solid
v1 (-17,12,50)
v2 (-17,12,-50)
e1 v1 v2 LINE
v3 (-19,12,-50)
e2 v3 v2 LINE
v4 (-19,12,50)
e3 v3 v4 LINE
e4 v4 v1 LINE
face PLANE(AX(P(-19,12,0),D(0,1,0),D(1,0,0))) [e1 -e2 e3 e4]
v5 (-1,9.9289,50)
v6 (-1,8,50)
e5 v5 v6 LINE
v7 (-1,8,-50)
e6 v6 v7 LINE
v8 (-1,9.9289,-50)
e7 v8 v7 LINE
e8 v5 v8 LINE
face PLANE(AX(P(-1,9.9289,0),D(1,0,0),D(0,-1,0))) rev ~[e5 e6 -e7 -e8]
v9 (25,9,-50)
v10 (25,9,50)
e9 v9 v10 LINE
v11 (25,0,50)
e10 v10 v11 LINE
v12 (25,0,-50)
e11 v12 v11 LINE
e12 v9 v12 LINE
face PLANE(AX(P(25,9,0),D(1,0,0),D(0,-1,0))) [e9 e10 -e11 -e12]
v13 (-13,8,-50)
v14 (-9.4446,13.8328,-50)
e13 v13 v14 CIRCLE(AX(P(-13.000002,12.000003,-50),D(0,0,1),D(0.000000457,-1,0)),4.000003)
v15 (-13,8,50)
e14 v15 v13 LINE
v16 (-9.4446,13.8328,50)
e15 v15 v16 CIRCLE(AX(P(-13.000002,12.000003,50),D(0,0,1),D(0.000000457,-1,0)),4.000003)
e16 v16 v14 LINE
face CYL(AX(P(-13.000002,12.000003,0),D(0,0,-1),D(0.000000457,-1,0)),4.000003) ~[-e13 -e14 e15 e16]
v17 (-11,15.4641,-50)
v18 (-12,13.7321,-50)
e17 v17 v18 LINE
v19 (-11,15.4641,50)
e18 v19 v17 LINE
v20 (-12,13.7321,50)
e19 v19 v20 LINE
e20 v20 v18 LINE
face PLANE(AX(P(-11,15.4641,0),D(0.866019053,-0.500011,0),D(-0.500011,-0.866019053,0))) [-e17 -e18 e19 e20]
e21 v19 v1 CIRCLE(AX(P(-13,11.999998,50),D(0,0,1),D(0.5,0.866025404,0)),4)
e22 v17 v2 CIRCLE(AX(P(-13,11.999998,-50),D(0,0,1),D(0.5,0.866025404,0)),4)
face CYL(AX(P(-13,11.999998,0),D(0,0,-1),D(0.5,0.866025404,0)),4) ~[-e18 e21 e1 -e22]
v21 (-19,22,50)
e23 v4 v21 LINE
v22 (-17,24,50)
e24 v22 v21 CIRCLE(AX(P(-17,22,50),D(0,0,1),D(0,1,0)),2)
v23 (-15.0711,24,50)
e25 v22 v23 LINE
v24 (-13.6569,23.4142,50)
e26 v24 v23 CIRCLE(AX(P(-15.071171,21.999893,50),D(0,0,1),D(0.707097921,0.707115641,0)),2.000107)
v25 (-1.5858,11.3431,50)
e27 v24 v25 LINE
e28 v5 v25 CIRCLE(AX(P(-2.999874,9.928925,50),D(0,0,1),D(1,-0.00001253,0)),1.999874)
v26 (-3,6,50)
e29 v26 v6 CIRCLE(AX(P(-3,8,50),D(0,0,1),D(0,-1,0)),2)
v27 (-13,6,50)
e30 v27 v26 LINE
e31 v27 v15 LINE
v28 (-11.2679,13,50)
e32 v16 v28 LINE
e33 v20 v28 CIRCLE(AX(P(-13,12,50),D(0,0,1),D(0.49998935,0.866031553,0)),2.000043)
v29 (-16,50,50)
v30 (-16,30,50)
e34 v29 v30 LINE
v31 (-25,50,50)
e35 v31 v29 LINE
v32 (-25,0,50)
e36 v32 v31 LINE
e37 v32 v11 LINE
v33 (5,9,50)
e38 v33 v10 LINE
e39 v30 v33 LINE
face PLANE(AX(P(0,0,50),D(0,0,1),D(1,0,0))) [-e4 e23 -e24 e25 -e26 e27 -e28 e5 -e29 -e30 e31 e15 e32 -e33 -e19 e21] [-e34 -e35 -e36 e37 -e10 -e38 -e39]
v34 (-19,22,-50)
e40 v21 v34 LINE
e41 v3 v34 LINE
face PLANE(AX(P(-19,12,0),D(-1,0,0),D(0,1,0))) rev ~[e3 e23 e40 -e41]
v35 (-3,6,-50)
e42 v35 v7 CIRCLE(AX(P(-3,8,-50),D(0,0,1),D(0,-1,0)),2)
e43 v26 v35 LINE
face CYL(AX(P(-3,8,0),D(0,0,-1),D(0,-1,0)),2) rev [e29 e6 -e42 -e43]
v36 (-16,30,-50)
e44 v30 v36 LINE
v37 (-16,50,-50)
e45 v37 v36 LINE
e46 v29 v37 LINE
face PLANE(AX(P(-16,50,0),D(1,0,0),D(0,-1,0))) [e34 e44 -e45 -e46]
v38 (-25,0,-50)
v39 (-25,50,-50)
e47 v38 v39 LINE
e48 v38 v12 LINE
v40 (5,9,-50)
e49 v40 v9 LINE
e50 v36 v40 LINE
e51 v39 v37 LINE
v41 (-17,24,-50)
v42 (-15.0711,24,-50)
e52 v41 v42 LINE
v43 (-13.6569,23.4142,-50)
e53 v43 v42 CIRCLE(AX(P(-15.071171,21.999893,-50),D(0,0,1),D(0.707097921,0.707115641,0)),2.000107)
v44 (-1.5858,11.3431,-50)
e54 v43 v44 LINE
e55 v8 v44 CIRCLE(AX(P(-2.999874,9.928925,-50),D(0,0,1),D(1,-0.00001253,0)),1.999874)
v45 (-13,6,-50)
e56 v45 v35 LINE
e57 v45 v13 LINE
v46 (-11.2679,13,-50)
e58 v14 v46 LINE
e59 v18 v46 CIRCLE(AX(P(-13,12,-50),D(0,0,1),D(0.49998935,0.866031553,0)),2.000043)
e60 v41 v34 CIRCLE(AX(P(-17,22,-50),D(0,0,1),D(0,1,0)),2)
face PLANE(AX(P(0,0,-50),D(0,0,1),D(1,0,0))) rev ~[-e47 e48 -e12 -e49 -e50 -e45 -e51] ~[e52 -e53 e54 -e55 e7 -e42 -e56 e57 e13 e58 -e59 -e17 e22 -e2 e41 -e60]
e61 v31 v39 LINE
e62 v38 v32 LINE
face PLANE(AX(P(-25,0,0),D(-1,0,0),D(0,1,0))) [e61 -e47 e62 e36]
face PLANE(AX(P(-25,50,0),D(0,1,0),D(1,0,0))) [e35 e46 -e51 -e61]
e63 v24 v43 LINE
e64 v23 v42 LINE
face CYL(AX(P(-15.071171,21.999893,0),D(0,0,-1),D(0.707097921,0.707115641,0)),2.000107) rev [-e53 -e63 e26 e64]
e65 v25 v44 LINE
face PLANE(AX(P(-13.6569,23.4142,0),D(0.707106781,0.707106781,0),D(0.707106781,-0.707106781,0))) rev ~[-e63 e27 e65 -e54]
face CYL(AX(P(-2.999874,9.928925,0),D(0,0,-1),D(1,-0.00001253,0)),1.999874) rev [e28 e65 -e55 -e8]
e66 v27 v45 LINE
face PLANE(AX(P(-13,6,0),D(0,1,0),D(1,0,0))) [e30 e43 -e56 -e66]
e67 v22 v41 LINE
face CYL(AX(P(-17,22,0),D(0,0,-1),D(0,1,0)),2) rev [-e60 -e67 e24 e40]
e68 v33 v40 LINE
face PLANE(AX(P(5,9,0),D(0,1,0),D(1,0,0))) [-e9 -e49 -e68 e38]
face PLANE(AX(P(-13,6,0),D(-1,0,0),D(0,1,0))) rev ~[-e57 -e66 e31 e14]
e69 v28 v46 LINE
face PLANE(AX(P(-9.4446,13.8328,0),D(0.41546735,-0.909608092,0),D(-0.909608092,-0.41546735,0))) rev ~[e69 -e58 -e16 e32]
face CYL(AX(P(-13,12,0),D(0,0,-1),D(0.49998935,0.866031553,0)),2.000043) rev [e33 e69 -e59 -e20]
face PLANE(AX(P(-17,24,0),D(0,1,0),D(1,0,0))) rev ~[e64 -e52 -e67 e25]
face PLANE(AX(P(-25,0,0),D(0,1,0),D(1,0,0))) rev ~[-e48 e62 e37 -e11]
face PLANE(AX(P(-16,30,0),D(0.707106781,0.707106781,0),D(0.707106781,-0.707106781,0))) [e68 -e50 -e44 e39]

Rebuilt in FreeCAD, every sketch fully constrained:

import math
import FreeCAD as App
import Part
import Sketcher
from FreeCAD import Vector


def add_polygon(sketch, points):
    """Adds a closed chain of lines whose ends are joined by coincident constraints."""
    first, n = sketch.GeometryCount, len(points)
    for a, b in zip(points, points[1:] + points[:1]):
        sketch.addGeometry(Part.LineSegment(App.Vector(*a, 0), App.Vector(*b, 0)), False)
    for i in range(n):
        sketch.addConstraint(Sketcher.Constraint("Coincident", first + i, 2, first + (i + 1) % n, 1))

doc = App.newDocument("Part")
body = doc.addObject("PartDesign::Body", "Body")

sketch1 = doc.addObject("Sketcher::SketchObject", "Sketch")
body.addObject(sketch1)
sketch1.AttachmentSupport = (doc.XY_Plane, [""])
sketch1.MapMode = "FlatFace"
add_polygon(sketch1, [(-25, 50), (-25, 0), (25, 0), (25, 9), (5, 9), (-16, 30), (-16, 50)])
sketch1.addGeometry(Part.LineSegment(Vector(-17, 12, 0), Vector(-19, 12, 0)), False)
sketch1.addGeometry(Part.LineSegment(Vector(-19, 12, 0), Vector(-19, 22, 0)), False)
sketch1.addGeometry(Part.ArcOfCircle(Part.Circle(Vector(-17, 22, 0), Vector(0, 0, 1), 2), math.radians(90), math.radians(180)), False)
sketch1.addGeometry(Part.LineSegment(Vector(-17, 24, 0), Vector(-15.0711, 24, 0)), False)
sketch1.addGeometry(Part.ArcOfCircle(Part.Circle(Vector(-15.0711, 22, 0), Vector(0, 0, 1), 1.999981), math.radians(45), math.radians(90)), False)
sketch1.addGeometry(Part.LineSegment(Vector(-13.6569, 23.4142, 0), Vector(-1.5858, 11.3431, 0)), False)
sketch1.addGeometry(Part.ArcOfCircle(Part.Circle(Vector(-3, 9.9289, 0), Vector(0, 0, 1), 2), math.radians(0), math.radians(45)), False)
sketch1.addGeometry(Part.LineSegment(Vector(-1, 9.9289, 0), Vector(-1, 8, 0)), False)
sketch1.addGeometry(Part.ArcOfCircle(Part.Circle(Vector(-3, 8, 0), Vector(0, 0, 1), 2), math.radians(-90), math.radians(0)), False)
sketch1.addGeometry(Part.LineSegment(Vector(-3, 6, 0), Vector(-13, 6, 0)), False)
sketch1.addGeometry(Part.LineSegment(Vector(-13, 6, 0), Vector(-13, 8, 0)), False)
sketch1.addGeometry(Part.ArcOfCircle(Part.Circle(Vector(-13, 12, 0), Vector(0, 0, 1), 4), math.radians(-90), math.radians(27.270995)), False)
sketch1.addGeometry(Part.LineSegment(Vector(-9.4446, 13.8328, 0), Vector(-11.2679, 13, 0)), False)
sketch1.addGeometry(Part.ArcOfCircle(Part.Circle(Vector(-13, 12, 0), Vector(0, 0, 1), 2.000043), math.radians(60.000705), math.radians(389.999295)), False)
sketch1.addGeometry(Part.LineSegment(Vector(-12, 13.7321, 0), Vector(-11, 15.4641, 0)), False)
sketch1.addGeometry(Part.ArcOfCircle(Part.Circle(Vector(-13, 12, 0), Vector(0, 0, 1), 4), math.radians(59.999988), math.radians(180)), False)
sketch1.addConstraint(Sketcher.Constraint("Coincident", 7, 2, 8, 1))
sketch1.addConstraint(Sketcher.Constraint("Tangent", 8, 2, 9, 2))
sketch1.addConstraint(Sketcher.Constraint("Tangent", 9, 1, 10, 1))
sketch1.addConstraint(Sketcher.Constraint("Tangent", 10, 2, 11, 2))
sketch1.addConstraint(Sketcher.Constraint("Tangent", 11, 1, 12, 1))
sketch1.addConstraint(Sketcher.Constraint("Tangent", 12, 2, 13, 2))
sketch1.addConstraint(Sketcher.Constraint("Tangent", 13, 1, 14, 1))
sketch1.addConstraint(Sketcher.Constraint("Tangent", 14, 2, 15, 2))
sketch1.addConstraint(Sketcher.Constraint("Tangent", 15, 1, 16, 1))
sketch1.addConstraint(Sketcher.Constraint("Coincident", 16, 2, 17, 1))
sketch1.addConstraint(Sketcher.Constraint("Coincident", 17, 2, 18, 1))
sketch1.addConstraint(Sketcher.Constraint("Coincident", 18, 2, 19, 1))
sketch1.addConstraint(Sketcher.Constraint("Coincident", 19, 2, 20, 2))
sketch1.addConstraint(Sketcher.Constraint("Coincident", 20, 1, 21, 1))
sketch1.addConstraint(Sketcher.Constraint("Coincident", 21, 2, 22, 1))
sketch1.addConstraint(Sketcher.Constraint("Coincident", 22, 2, 7, 1))
sketch1.addConstraint(Sketcher.Constraint("Vertical", 0))
sketch1.addConstraint(Sketcher.Constraint("Horizontal", 1))
sketch1.addConstraint(Sketcher.Constraint("Vertical", 2))
sketch1.addConstraint(Sketcher.Constraint("Horizontal", 3))
sketch1.addConstraint(Sketcher.Constraint("Vertical", 5))
sketch1.addConstraint(Sketcher.Constraint("Horizontal", 6))
sketch1.addConstraint(Sketcher.Constraint("Horizontal", 7))
sketch1.addConstraint(Sketcher.Constraint("Vertical", 8))
sketch1.addConstraint(Sketcher.Constraint("Horizontal", 10))
sketch1.addConstraint(Sketcher.Constraint("Vertical", 14))
sketch1.addConstraint(Sketcher.Constraint("Horizontal", 16))
sketch1.addConstraint(Sketcher.Constraint("Vertical", 17))
sketch1.addConstraint(Sketcher.Constraint("Coincident", 20, 3, 18, 3))
sketch1.addConstraint(Sketcher.Constraint("Coincident", 22, 3, 18, 3))
sketch1.addConstraint(Sketcher.Constraint("Equal", 9, 11))
sketch1.addConstraint(Sketcher.Constraint("Equal", 11, 13))
sketch1.addConstraint(Sketcher.Constraint("Equal", 13, 15))
sketch1.addConstraint(Sketcher.Constraint("Equal", 15, 20))
sketch1.addConstraint(Sketcher.Constraint("Equal", 18, 22))
sketch1.addConstraint(Sketcher.Constraint("Symmetric", 0, 2, 1, 2, -1, 1))
sketch1.addConstraint(Sketcher.Constraint("Parallel", 4, 12))
sketch1.addConstraint(Sketcher.Constraint("Horizontal", 22, 3, 7, 2))
sketch1.addConstraint(Sketcher.Constraint("Horizontal", 14, 2, 17, 2))
sketch1.addConstraint(Sketcher.Constraint("Vertical", 22, 3, 16, 2))
sketch1.addConstraint(Sketcher.Constraint("Vertical", 9, 1, 22, 2))
sketch1.addConstraint(Sketcher.Constraint("Equal", 1, 0))
sketch1.addConstraint(Sketcher.Constraint("Equal", 6, 2))
sketch1.addConstraint(Sketcher.Constraint("Equal", 3, 5))
sketch1.addConstraint(Sketcher.Constraint("Equal", 16, 8))
sketch1.addConstraint(Sketcher.Constraint("Radius", 9, 2.0))
sketch1.addConstraint(Sketcher.Constraint("Radius", 18, 4.0))
sketch1.addConstraint(Sketcher.Constraint("DistanceX", 1, 1, 1, 2, 50.0))
sketch1.addConstraint(Sketcher.Constraint("DistanceX", 3, 2, 3, 1, 20.0))
sketch1.addConstraint(Sketcher.Constraint("DistanceX", 6, 2, 6, 1, 9.0))
sketch1.addConstraint(Sketcher.Constraint("DistanceX", 13, 3, -1, 1, 3.0))
sketch1.addConstraint(Sketcher.Constraint("DistanceY", -1, 1, 18, 3, 12.0))
sketch1.addConstraint(Sketcher.Constraint("DistanceX", 20, 1, -1, 1, 12.0))
sketch1.addConstraint(Sketcher.Constraint("DistanceX", 21, 2, -1, 1, 11.0))
sketch1.addConstraint(Sketcher.Constraint("DistanceX", 0, 2, 18, 3, 12.0))
sketch1.addConstraint(Sketcher.Constraint("DistanceY", -1, 1, 19, 2, 13.0))
sketch1.addConstraint(Sketcher.Constraint("DistanceX", 19, 2, 18, 2, 1.8233))
sketch1.addConstraint(Sketcher.Constraint("DistanceX", 10, 1, 10, 2, 1.929))
pad1 = doc.addObject("PartDesign::Pad", "Pad")
body.addObject(pad1)
pad1.Profile = sketch1
pad1.Length = 100
pad1.Midplane = True

doc.recompute()
